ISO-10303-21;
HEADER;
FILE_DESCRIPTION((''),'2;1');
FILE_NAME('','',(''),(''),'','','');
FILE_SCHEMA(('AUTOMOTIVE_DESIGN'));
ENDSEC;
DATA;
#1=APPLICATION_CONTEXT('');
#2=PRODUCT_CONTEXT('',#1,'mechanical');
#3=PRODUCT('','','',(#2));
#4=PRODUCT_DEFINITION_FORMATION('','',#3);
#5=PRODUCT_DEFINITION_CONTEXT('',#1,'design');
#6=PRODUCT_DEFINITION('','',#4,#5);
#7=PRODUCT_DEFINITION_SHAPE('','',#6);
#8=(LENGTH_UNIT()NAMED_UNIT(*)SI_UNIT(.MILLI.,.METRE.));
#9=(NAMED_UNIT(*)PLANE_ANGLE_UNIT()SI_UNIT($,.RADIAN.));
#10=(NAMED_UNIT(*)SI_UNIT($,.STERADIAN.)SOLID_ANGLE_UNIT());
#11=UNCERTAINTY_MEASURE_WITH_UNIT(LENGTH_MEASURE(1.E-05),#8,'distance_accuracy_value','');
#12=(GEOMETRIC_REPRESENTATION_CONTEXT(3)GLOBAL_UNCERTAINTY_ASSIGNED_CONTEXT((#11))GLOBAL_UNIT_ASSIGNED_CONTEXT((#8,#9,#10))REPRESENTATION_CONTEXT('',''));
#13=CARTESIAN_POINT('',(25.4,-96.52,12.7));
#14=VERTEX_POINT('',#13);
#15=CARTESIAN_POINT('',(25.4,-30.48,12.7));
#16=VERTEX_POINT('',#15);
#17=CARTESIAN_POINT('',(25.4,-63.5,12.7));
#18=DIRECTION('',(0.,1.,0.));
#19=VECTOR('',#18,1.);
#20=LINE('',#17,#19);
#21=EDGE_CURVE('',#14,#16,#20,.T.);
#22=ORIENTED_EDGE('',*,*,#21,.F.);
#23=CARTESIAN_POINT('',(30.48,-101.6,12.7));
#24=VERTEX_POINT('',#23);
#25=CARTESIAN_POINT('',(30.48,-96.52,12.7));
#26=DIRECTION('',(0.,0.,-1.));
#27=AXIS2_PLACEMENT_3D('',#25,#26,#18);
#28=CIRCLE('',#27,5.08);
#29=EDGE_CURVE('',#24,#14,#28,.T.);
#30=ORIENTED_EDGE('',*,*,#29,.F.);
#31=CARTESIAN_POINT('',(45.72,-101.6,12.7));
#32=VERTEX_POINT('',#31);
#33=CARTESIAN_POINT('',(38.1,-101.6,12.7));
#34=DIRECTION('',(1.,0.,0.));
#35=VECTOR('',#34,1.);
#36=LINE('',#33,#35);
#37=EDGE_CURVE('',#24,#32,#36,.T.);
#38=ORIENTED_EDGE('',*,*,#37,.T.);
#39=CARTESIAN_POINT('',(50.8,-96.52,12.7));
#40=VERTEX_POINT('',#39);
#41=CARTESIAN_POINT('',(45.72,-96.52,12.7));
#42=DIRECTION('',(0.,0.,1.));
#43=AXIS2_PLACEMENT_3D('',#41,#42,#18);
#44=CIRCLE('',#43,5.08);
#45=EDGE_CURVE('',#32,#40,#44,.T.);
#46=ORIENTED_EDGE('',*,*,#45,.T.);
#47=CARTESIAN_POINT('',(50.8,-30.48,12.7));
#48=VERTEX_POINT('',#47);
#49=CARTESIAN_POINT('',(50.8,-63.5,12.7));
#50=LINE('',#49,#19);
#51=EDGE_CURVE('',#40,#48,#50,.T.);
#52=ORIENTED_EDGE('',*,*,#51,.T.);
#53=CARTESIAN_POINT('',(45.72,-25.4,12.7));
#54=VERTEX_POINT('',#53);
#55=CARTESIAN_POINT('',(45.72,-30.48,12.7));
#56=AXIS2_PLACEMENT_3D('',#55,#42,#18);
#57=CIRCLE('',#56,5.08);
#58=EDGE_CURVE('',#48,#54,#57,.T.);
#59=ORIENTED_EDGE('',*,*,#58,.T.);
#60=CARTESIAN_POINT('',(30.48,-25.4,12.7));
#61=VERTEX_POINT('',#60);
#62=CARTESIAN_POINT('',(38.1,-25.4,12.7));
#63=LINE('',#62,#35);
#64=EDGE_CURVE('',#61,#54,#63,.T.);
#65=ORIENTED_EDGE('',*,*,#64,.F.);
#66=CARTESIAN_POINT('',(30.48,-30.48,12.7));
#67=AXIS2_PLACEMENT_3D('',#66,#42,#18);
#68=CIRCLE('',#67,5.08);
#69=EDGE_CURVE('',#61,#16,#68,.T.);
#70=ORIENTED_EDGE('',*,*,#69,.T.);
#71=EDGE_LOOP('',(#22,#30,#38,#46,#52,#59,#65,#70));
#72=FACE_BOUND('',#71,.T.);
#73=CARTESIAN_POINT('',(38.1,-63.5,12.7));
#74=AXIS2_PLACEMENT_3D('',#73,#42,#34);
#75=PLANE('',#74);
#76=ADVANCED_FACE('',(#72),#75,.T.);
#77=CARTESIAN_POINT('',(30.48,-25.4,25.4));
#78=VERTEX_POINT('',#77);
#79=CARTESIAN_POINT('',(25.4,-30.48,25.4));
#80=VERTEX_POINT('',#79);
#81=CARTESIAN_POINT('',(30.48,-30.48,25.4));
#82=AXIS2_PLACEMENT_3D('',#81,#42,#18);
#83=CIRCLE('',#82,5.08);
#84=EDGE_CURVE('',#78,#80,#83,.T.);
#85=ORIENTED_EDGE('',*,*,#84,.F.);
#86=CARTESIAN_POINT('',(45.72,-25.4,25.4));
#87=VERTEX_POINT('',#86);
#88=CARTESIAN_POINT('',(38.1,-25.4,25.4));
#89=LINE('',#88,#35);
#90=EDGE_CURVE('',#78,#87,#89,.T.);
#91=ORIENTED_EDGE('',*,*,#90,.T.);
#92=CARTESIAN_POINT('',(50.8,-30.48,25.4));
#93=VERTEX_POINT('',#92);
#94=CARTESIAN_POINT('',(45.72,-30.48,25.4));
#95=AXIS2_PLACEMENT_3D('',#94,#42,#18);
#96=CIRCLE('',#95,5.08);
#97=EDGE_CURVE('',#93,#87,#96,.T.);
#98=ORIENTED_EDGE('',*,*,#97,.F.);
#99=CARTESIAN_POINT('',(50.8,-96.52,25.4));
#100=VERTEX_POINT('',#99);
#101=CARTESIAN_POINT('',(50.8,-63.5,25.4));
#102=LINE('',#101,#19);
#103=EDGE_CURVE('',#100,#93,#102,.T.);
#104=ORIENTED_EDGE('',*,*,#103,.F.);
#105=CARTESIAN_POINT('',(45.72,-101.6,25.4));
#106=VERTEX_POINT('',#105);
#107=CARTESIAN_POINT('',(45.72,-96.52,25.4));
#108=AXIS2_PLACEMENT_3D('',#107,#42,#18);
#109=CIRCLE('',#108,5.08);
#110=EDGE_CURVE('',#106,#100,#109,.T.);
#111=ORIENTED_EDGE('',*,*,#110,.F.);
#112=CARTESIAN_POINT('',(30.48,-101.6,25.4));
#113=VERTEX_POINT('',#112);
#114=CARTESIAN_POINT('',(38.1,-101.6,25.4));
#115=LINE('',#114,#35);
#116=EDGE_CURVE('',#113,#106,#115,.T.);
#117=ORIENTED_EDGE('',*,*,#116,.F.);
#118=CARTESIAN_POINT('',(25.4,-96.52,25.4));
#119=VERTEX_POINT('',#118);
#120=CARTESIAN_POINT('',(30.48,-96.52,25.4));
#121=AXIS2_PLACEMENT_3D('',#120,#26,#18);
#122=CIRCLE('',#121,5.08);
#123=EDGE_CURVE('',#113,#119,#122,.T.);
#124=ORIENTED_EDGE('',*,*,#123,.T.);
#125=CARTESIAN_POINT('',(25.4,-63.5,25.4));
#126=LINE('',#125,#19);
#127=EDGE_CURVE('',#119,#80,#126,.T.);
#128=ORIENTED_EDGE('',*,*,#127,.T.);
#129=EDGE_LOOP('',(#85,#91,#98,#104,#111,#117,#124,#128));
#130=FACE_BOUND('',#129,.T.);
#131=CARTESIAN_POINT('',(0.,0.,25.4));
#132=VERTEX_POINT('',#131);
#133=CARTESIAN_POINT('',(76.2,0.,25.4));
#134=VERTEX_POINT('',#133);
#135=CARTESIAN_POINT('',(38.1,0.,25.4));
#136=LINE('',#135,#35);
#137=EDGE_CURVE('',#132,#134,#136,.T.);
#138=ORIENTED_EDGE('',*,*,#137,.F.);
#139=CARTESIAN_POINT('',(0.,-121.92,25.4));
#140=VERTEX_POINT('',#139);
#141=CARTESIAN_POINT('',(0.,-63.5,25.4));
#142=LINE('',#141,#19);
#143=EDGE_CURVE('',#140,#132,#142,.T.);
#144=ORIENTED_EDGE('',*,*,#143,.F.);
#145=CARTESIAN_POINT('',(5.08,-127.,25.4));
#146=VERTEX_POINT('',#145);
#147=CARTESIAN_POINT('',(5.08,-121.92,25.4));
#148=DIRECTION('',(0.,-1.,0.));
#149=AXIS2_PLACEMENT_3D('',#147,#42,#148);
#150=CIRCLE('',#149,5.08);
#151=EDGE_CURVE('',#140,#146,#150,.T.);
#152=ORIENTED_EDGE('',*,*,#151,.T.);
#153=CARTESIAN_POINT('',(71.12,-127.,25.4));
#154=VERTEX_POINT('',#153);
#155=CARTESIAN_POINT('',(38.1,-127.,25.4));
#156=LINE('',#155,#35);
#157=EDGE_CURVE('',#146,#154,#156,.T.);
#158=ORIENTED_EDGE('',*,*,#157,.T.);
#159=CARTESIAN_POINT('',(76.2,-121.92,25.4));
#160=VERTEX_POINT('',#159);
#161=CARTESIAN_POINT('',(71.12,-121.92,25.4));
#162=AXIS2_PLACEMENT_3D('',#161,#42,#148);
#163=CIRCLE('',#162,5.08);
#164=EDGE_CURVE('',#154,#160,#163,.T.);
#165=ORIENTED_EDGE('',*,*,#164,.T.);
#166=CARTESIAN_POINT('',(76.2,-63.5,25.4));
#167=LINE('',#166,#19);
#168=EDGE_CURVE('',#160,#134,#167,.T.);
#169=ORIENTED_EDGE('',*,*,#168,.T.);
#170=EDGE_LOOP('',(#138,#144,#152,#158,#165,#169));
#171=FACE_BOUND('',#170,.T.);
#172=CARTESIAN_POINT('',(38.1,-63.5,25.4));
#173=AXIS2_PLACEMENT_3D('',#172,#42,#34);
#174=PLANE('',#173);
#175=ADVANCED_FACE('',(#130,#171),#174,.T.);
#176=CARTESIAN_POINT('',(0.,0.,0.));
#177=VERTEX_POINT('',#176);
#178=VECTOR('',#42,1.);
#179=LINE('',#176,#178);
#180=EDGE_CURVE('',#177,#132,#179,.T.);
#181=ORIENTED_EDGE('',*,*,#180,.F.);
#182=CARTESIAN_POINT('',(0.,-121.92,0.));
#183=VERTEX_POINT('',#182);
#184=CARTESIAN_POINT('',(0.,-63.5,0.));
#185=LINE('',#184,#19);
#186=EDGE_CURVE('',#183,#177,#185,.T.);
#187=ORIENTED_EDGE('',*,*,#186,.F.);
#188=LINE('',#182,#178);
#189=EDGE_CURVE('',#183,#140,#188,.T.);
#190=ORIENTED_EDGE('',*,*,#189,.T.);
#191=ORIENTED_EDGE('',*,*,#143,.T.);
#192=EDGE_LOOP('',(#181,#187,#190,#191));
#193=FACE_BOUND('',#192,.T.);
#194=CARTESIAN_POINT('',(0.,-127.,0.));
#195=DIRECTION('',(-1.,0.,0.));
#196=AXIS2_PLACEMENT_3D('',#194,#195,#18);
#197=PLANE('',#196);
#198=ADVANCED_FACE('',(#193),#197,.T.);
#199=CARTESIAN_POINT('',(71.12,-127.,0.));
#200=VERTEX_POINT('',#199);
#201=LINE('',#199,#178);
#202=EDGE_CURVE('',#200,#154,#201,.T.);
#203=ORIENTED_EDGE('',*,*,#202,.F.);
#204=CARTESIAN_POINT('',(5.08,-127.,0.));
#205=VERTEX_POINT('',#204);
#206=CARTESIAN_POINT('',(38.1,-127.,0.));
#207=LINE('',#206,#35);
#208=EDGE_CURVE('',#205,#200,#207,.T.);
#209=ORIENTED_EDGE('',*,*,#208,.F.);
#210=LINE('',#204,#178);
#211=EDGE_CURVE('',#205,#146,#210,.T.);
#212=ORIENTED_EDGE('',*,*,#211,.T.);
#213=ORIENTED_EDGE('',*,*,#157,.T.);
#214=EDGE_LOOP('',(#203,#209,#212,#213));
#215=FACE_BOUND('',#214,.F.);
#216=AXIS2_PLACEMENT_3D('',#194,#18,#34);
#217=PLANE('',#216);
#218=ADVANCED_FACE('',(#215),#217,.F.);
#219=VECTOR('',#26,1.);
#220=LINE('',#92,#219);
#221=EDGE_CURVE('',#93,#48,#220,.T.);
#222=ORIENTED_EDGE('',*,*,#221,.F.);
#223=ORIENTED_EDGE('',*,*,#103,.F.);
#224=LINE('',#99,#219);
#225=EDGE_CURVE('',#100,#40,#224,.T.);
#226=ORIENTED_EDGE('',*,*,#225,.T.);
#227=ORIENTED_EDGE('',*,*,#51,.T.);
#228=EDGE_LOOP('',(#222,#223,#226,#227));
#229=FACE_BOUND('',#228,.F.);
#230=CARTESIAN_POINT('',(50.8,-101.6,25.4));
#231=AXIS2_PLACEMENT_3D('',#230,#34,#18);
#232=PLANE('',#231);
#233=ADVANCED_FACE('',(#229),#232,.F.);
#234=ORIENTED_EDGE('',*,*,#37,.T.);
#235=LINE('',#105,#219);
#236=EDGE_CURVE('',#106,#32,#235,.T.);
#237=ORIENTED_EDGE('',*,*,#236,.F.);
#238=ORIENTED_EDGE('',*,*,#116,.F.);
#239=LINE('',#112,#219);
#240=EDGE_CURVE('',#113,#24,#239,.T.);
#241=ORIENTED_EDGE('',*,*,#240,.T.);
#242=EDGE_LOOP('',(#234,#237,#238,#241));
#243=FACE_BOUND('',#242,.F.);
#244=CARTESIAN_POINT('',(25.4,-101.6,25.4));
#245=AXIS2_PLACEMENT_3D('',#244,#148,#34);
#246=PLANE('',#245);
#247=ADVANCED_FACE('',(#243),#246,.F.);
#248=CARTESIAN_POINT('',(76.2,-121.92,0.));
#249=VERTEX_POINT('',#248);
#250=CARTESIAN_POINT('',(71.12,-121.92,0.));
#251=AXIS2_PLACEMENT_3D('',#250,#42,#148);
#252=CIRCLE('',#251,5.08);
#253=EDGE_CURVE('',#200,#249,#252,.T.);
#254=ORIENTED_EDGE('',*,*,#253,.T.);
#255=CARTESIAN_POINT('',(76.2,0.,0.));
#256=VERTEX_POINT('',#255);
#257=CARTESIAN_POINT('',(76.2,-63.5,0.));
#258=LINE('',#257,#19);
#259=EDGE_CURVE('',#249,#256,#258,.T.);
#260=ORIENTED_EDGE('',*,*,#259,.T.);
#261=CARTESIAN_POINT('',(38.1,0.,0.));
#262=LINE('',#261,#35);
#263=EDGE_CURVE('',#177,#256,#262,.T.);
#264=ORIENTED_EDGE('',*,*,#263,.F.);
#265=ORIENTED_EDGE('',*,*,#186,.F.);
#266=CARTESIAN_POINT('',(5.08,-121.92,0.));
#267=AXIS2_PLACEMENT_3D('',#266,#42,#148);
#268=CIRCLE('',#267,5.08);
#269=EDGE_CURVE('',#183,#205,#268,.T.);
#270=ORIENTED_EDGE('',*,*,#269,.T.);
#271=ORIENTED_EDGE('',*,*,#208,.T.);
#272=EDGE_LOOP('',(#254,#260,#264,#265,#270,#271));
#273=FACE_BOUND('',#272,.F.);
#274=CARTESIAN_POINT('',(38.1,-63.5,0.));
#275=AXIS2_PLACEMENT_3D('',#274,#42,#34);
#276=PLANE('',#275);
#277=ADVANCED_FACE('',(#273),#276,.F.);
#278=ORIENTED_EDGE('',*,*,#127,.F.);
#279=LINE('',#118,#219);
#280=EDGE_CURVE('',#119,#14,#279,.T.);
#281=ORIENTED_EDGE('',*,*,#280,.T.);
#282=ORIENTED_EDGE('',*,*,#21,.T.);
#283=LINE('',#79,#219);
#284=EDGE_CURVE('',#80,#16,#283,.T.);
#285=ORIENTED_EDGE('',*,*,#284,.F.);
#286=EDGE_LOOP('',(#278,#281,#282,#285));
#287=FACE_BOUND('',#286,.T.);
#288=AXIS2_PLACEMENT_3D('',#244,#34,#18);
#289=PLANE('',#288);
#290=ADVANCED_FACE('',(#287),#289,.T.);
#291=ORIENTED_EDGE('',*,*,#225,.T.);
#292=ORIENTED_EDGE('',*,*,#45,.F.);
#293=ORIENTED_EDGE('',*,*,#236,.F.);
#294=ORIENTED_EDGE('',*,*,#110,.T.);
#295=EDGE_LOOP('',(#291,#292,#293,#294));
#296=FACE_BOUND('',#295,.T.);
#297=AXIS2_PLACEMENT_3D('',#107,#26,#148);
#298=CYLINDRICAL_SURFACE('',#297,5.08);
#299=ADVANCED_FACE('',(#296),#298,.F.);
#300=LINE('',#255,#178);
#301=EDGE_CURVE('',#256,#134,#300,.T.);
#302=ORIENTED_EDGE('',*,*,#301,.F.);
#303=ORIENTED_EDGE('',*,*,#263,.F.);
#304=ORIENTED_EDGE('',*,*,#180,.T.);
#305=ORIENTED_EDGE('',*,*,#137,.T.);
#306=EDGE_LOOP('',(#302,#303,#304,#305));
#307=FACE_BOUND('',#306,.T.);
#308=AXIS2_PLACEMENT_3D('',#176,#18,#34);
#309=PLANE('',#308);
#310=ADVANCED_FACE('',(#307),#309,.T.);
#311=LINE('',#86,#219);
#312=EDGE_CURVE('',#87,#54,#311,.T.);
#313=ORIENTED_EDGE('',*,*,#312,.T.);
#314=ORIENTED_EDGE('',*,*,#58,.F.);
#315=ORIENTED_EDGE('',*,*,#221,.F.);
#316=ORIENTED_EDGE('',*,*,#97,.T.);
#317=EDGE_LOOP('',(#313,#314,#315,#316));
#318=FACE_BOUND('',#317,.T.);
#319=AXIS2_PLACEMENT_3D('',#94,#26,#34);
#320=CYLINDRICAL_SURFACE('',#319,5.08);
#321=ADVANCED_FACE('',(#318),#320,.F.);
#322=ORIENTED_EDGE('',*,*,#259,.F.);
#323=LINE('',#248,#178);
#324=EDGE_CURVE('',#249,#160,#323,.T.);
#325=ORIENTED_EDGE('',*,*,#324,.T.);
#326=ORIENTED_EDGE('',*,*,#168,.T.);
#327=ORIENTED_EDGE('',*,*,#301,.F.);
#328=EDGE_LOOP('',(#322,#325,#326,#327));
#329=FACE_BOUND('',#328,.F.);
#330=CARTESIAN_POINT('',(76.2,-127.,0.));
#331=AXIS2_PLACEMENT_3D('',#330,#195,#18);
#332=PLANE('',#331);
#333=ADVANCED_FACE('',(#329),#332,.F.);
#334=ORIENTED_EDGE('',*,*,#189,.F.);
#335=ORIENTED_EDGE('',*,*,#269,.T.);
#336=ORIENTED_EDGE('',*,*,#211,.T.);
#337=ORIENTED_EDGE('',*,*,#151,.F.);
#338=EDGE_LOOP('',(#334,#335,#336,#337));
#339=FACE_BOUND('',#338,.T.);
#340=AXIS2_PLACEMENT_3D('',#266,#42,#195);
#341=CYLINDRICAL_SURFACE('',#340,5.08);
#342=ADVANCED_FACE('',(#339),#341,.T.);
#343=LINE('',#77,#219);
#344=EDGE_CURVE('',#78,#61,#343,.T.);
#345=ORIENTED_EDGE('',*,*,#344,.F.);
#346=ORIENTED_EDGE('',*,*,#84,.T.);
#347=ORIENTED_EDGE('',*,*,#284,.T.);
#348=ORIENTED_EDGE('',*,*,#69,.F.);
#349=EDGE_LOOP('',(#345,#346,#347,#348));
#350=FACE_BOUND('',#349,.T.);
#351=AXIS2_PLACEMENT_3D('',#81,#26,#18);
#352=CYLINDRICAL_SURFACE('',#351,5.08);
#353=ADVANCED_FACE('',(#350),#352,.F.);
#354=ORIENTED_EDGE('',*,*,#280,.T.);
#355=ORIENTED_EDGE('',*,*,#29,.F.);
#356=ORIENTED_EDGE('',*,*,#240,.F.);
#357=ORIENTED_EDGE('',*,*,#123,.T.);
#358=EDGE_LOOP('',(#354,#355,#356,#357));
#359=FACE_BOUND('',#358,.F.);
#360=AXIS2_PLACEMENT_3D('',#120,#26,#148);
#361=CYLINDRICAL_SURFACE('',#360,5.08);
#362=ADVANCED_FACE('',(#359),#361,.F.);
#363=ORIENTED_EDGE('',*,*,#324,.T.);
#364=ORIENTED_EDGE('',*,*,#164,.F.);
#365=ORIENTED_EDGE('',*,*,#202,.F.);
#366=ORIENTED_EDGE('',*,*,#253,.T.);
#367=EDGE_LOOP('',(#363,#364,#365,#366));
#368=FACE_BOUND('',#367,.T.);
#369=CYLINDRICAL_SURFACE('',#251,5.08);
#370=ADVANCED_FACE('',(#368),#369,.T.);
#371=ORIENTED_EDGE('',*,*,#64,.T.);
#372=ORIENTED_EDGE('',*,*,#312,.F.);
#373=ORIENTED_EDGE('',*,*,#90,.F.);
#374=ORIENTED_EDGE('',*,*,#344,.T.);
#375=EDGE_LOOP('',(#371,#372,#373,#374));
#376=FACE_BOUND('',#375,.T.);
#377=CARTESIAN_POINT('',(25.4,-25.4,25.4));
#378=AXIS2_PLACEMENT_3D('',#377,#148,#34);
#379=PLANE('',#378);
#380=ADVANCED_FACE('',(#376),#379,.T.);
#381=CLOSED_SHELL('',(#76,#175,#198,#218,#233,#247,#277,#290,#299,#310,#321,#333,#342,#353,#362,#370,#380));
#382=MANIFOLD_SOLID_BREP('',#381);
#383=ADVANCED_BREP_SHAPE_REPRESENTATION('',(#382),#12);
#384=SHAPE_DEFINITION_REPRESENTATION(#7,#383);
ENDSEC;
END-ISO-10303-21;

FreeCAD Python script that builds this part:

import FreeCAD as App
import Part
import Sketcher

V = App.Vector
Q = App.Units.Quantity


def edges_at(feature, points):
    """Names of the edges that pass closest to the given points."""
    edges = feature.Shape.Edges
    near = lambda p: min(range(len(edges)), key=lambda i: edges[i].distToShape(Part.Vertex(*p))[0])
    return sorted({f"Edge{near(p) + 1}" for p in points})

doc = App.newDocument("Part")
body = doc.addObject("PartDesign::Body", "Body")

# Sketch on XY plane
sketch1 = body.newObject("Sketcher::SketchObject", "Sketch")
sketch1.AttachmentSupport = (doc.getObject("XY_Plane"), [""])
sketch1.MapMode = "FlatFace"
sketch1.addGeometry([
    Part.LineSegment(V(0, 0, 0), V(0, -127, 0)),
    Part.LineSegment(V(0, -127, 0), V(76, -127, 0)),
    Part.LineSegment(V(76, -127, 0), V(76, 0, 0)),
    Part.LineSegment(V(76, 0, 0), V(0, 0, 0)),
], False)
sketch1.addConstraint([
    Sketcher.Constraint("Coincident", 0, 2, 1, 1),
    Sketcher.Constraint("Coincident", 1, 2, 2, 1),
    Sketcher.Constraint("Coincident", 2, 2, 3, 1),
    Sketcher.Constraint("Coincident", 3, 2, 0, 1),
    Sketcher.Constraint("Vertical", 0),
    Sketcher.Constraint("Horizontal", 1),
    Sketcher.Constraint("Vertical", 2),
    Sketcher.Constraint("Horizontal", 3),
    Sketcher.Constraint("Coincident", 3, 2, -1, 1),
    Sketcher.Constraint("DistanceX", 1, 1, 1, 2, Q("3 in")),
    Sketcher.Constraint("DistanceY", 0, 2, 0, 1, Q("5 in")),
])
pad1 = body.newObject("PartDesign::Pad", "Pad")
pad1.Profile = sketch1
pad1.Length = Q("1 in")
doc.recompute()

fillet = body.newObject("PartDesign::Fillet", "Fillet")
fillet.Base = (pad1, edges_at(pad1, [(0, -127, 12.7), (76.2, -127, 12.7)]))
fillet.Radius = Q("0.2 in")

# Sketch on XY plane
sketch2 = body.newObject("Sketcher::SketchObject", "Sketch001")
sketch2.AttachmentSupport = (doc.getObject("XY_Plane"), [""])
sketch2.MapMode = "FlatFace"
sketch2.AttachmentOffset = App.Placement(V(0, 0, 1 * 25.4), App.Rotation())
sketch2.addGeometry([
    Part.LineSegment(V(25, -25, 0), V(25, -102, 0)),
    Part.LineSegment(V(25, -102, 0), V(51, -102, 0)),
    Part.LineSegment(V(51, -102, 0), V(51, -25, 0)),
    Part.LineSegment(V(51, -25, 0), V(25, -25, 0)),
], False)
sketch2.addConstraint([
    Sketcher.Constraint("Coincident", 0, 2, 1, 1),
    Sketcher.Constraint("Coincident", 1, 2, 2, 1),
    Sketcher.Constraint("Coincident", 2, 2, 3, 1),
    Sketcher.Constraint("Coincident", 3, 2, 0, 1),
    Sketcher.Constraint("Vertical", 0),
    Sketcher.Constraint("Horizontal", 1),
    Sketcher.Constraint("Vertical", 2),
    Sketcher.Constraint("Horizontal", 3),
    Sketcher.Constraint("DistanceX", 1, 1, 1, 2, Q("1 in")),
    Sketcher.Constraint("DistanceY", 0, 2, 0, 1, Q("3 in")),
    Sketcher.Constraint("DistanceX", -1, 1, 0, 2, Q("1 in")),
    Sketcher.Constraint("DistanceY", 0, 2, -1, 1, Q("4 in")),
])
pocket1 = body.newObject("PartDesign::Pocket", "Pocket")
pocket1.Profile = sketch2
pocket1.Length = Q("0.5 in")
doc.recompute()

fillet2 = body.newObject("PartDesign::Fillet", "Fillet001")
fillet2.Base = (pocket1, edges_at(pocket1, [
    (50.8, -25.4, 19.05),
    (25.4, -25.4, 19.05),
    (50.8, -101.6, 19.05),
    (25.4, -101.6, 19.05),
]))
fillet2.Radius = Q("0.2 in")

doc.recompute()
